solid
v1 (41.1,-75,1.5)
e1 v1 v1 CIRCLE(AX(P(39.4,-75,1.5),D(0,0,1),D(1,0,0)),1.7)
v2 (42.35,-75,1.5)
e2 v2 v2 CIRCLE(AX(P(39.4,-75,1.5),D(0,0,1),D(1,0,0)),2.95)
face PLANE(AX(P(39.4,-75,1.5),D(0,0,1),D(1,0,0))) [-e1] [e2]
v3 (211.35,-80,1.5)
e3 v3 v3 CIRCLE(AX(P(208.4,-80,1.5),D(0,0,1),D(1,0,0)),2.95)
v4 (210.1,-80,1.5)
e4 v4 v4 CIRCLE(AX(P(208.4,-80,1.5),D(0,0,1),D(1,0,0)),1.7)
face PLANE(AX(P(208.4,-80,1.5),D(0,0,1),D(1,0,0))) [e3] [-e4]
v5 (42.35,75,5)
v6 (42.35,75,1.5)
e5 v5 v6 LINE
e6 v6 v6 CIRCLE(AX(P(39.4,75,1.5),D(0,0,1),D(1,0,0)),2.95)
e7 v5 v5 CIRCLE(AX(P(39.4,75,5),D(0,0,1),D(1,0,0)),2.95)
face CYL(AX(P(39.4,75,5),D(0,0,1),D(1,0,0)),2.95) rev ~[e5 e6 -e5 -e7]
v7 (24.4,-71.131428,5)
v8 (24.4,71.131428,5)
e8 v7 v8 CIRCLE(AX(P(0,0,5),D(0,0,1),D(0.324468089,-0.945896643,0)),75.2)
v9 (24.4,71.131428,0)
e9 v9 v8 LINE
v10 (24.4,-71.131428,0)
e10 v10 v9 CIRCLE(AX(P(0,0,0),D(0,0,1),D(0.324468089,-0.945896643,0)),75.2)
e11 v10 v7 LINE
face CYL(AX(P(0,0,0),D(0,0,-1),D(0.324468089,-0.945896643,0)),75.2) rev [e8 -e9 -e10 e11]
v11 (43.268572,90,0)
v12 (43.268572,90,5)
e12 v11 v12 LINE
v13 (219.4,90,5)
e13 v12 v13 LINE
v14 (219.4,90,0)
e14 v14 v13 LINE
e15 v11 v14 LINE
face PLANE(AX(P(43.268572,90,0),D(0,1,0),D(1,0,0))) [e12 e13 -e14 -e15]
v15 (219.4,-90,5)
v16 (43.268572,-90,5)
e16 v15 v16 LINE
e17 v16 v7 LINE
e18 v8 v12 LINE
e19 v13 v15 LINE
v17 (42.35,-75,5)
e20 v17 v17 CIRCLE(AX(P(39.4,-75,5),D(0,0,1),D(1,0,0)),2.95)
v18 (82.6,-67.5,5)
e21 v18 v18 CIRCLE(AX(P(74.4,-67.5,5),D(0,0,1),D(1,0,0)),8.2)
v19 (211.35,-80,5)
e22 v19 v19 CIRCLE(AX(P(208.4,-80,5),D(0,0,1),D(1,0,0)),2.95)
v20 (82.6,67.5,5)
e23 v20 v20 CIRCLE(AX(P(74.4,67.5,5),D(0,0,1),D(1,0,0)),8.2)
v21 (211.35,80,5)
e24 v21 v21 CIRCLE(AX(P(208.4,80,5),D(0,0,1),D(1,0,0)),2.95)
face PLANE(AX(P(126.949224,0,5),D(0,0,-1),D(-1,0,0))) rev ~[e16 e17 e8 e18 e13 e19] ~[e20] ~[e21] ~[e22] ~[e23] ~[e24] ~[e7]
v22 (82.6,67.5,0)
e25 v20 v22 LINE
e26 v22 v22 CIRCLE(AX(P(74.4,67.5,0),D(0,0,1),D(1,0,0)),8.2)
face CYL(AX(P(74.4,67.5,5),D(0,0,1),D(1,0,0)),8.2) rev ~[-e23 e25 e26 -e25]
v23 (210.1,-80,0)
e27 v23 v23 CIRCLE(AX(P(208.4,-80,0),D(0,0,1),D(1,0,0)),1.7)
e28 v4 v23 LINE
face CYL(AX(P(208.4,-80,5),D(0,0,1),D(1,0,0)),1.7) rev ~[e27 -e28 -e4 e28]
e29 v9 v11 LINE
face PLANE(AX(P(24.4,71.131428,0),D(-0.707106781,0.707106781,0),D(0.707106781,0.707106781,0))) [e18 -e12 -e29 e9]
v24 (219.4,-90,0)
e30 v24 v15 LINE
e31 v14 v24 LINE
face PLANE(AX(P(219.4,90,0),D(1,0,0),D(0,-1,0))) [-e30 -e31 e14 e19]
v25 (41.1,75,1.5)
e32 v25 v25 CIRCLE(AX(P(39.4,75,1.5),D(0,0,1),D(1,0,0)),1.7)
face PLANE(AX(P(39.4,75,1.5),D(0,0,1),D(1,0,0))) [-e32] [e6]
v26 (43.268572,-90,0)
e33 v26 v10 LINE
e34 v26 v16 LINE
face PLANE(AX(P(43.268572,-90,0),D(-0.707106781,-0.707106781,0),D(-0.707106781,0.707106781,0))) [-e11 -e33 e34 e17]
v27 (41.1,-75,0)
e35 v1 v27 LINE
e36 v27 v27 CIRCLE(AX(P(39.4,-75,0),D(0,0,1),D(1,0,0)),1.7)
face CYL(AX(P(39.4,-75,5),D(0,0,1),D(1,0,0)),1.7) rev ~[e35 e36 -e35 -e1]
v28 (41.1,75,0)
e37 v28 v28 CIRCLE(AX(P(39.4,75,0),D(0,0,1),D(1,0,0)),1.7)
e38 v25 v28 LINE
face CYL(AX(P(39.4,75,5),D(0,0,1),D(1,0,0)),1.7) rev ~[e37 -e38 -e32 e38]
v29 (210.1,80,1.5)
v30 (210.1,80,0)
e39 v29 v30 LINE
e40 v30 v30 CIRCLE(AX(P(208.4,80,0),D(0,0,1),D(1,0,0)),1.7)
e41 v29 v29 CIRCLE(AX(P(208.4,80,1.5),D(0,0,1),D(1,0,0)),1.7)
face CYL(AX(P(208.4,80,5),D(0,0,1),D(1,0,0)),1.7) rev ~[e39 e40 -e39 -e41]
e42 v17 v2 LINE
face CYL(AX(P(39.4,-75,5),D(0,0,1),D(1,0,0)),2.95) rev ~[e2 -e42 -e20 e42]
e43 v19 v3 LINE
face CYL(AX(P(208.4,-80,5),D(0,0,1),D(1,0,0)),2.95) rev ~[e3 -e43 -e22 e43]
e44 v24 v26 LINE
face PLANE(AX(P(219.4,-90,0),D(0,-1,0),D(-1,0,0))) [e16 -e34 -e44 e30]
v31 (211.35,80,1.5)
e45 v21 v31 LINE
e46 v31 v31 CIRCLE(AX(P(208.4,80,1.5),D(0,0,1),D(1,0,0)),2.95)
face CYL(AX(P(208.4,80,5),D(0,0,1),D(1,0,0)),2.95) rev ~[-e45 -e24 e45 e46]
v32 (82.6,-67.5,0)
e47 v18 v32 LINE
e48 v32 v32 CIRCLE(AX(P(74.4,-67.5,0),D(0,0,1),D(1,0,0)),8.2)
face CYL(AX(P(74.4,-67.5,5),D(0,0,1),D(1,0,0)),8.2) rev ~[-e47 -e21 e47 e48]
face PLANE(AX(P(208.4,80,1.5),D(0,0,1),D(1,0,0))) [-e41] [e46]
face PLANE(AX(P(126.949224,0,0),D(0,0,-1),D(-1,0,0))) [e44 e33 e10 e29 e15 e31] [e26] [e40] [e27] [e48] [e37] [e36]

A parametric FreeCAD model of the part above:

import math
import FreeCAD as App
import Part
import Sketcher
from FreeCAD import Vector

doc = App.newDocument("Part")
body = doc.addObject("PartDesign::Body", "Body")

# Sketch on XY plane
sketch1 = body.newObject("Sketcher::SketchObject", "Sketch")
sketch1.AttachmentSupport = (doc.getObject("XY_Plane"), [""])
sketch1.MapMode = "FlatFace"
sketch1.addGeometry([
    Part.ArcOfCircle(Part.Circle(Vector(0, 0, 0), Vector(0, 0, 1), 75), math.radians(-71), math.radians(71)),  # 0
    Part.LineSegment(Vector(24, -71, 0), Vector(43, -90, 0)),  # 1
    Part.LineSegment(Vector(43, -90, 0), Vector(219, -90, 0)),  # 2
    Part.LineSegment(Vector(219, -90, 0), Vector(219, 90, 0)),  # 3
    Part.LineSegment(Vector(219, 90, 0), Vector(43, 90, 0)),  # 4
    Part.LineSegment(Vector(43, 90, 0), Vector(24, 71, 0)),  # 5
], False)
sketch1.addConstraint([
    Sketcher.Constraint("Coincident", 0, 1, 1, 1),
    Sketcher.Constraint("Coincident", 1, 2, 2, 1),
    Sketcher.Constraint("Coincident", 2, 2, 3, 1),
    Sketcher.Constraint("Coincident", 3, 2, 4, 1),
    Sketcher.Constraint("Coincident", 4, 2, 5, 1),
    Sketcher.Constraint("Coincident", 5, 2, 0, 2),
    Sketcher.Constraint("Horizontal", 2),
    Sketcher.Constraint("Vertical", 3),
    Sketcher.Constraint("Horizontal", 4),
    Sketcher.Constraint("Coincident", 0, 3, -1, 1),
    Sketcher.Constraint("Symmetric", 1, 2, 4, 2, -1),
    Sketcher.Constraint("Perpendicular", 1, 5),
    Sketcher.Constraint("Vertical", 0, 1, 5, 2),
    Sketcher.Constraint("Radius", 0, 75.2),
    Sketcher.Constraint("DistanceY", 3, 1, 3, 2, 180.0),
    Sketcher.Constraint("DistanceX", 0, 1, 2, 2, 195.0),
    Sketcher.Constraint("DistanceX", -1, 1, 0, 1, 24.4),
])
pad1 = body.newObject("PartDesign::Pad", "Pad")
pad1.Profile = sketch1
pad1.Length = 5

# Sketch on XY plane
sketch2 = body.newObject("Sketcher::SketchObject", "Sketch001")
sketch2.AttachmentSupport = (doc.getObject("XY_Plane"), [""])
sketch2.MapMode = "FlatFace"
sketch2.AttachmentOffset = App.Placement(Vector(0, 0, 5), App.Rotation())
sketch2.addGeometry([
    Part.Circle(Vector(39.4, 75, 0), Vector(0, 0, 1), 1.7),  # 0
    Part.Circle(Vector(39.4, -75, 0), Vector(0, 0, 1), 1.7),  # 1
    Part.Circle(Vector(208.4, -80, 0), Vector(0, 0, 1), 1.7),  # 2
    Part.Circle(Vector(208.4, 80, 0), Vector(0, 0, 1), 1.7),  # 3
    Part.Circle(Vector(74.4, 67.5, 0), Vector(0, 0, 1), 8.2),  # 4
    Part.Circle(Vector(74.4, -67.5, 0), Vector(0, 0, 1), 8.2),  # 5
], False)
sketch2.addConstraint([
    Sketcher.Constraint("Equal", 0, 1),
    Sketcher.Constraint("Equal", 1, 2),
    Sketcher.Constraint("Equal", 2, 3),
    Sketcher.Constraint("Equal", 4, 5),
    Sketcher.Constraint("Symmetric", 0, 3, 1, 3, -1),
    Sketcher.Constraint("Symmetric", 2, 3, 3, 3, -1),
    Sketcher.Constraint("Symmetric", 4, 3, 5, 3, -1),
    Sketcher.Constraint("Diameter", 0, 3.4),
    Sketcher.Constraint("Diameter", 4, 16.4),
    Sketcher.Constraint("DistanceY", -1, 1, 0, 3, 75.0),
    Sketcher.Constraint("DistanceY", 2, 3, -1, 1, 80.0),
    Sketcher.Constraint("DistanceX", 1, 3, 2, 3, 169.0),
    Sketcher.Constraint("DistanceX", 0, 3, 4, 3, 35.0),
    Sketcher.Constraint("DistanceY", 5, 3, 4, 3, 135.0),
    Sketcher.Constraint("DistanceX", -1, 1, 0, 3, 39.4),
])
pocket1 = body.newObject("PartDesign::Pocket", "Pocket")
pocket1.Profile = sketch2
pocket1.Type = "ThroughAll"

# Sketch on XY plane
sketch3 = body.newObject("Sketcher::SketchObject", "Sketch002")
sketch3.AttachmentSupport = (doc.getObject("XY_Plane"), [""])
sketch3.MapMode = "FlatFace"
sketch3.AttachmentOffset = App.Placement(Vector(0, 0, 5), App.Rotation())
sketch3.addGeometry([
    Part.Circle(Vector(39.4, -75, 0), Vector(0, 0, 1), 3),
    Part.Circle(Vector(208.4, -80, 0), Vector(0, 0, 1), 3),
    Part.Circle(Vector(39.4, 75, 0), Vector(0, 0, 1), 3),
    Part.Circle(Vector(208.4, 80, 0), Vector(0, 0, 1), 3),
], False)
sketch3.addConstraint([
    Sketcher.Constraint("Equal", 0, 1),
    Sketcher.Constraint("Equal", 1, 2),
    Sketcher.Constraint("Equal", 2, 3),
    Sketcher.Constraint("Symmetric", 0, 3, 2, 3, -1),
    Sketcher.Constraint("Symmetric", 1, 3, 3, 3, -1),
    Sketcher.Constraint("Diameter", 0, 5.9),
    Sketcher.Constraint("DistanceY", 0, 3, -1, 1, 75.0),
    Sketcher.Constraint("DistanceY", 1, 3, -1, 1, 80.0),
    Sketcher.Constraint("DistanceX", 0, 3, 1, 3, 169.0),
    Sketcher.Constraint("DistanceX", -1, 1, 0, 3, 39.4),
])
pocket2 = body.newObject("PartDesign::Pocket", "Pocket001")
pocket2.Profile = sketch3
pocket2.Length = 3.5

doc.recompute()
